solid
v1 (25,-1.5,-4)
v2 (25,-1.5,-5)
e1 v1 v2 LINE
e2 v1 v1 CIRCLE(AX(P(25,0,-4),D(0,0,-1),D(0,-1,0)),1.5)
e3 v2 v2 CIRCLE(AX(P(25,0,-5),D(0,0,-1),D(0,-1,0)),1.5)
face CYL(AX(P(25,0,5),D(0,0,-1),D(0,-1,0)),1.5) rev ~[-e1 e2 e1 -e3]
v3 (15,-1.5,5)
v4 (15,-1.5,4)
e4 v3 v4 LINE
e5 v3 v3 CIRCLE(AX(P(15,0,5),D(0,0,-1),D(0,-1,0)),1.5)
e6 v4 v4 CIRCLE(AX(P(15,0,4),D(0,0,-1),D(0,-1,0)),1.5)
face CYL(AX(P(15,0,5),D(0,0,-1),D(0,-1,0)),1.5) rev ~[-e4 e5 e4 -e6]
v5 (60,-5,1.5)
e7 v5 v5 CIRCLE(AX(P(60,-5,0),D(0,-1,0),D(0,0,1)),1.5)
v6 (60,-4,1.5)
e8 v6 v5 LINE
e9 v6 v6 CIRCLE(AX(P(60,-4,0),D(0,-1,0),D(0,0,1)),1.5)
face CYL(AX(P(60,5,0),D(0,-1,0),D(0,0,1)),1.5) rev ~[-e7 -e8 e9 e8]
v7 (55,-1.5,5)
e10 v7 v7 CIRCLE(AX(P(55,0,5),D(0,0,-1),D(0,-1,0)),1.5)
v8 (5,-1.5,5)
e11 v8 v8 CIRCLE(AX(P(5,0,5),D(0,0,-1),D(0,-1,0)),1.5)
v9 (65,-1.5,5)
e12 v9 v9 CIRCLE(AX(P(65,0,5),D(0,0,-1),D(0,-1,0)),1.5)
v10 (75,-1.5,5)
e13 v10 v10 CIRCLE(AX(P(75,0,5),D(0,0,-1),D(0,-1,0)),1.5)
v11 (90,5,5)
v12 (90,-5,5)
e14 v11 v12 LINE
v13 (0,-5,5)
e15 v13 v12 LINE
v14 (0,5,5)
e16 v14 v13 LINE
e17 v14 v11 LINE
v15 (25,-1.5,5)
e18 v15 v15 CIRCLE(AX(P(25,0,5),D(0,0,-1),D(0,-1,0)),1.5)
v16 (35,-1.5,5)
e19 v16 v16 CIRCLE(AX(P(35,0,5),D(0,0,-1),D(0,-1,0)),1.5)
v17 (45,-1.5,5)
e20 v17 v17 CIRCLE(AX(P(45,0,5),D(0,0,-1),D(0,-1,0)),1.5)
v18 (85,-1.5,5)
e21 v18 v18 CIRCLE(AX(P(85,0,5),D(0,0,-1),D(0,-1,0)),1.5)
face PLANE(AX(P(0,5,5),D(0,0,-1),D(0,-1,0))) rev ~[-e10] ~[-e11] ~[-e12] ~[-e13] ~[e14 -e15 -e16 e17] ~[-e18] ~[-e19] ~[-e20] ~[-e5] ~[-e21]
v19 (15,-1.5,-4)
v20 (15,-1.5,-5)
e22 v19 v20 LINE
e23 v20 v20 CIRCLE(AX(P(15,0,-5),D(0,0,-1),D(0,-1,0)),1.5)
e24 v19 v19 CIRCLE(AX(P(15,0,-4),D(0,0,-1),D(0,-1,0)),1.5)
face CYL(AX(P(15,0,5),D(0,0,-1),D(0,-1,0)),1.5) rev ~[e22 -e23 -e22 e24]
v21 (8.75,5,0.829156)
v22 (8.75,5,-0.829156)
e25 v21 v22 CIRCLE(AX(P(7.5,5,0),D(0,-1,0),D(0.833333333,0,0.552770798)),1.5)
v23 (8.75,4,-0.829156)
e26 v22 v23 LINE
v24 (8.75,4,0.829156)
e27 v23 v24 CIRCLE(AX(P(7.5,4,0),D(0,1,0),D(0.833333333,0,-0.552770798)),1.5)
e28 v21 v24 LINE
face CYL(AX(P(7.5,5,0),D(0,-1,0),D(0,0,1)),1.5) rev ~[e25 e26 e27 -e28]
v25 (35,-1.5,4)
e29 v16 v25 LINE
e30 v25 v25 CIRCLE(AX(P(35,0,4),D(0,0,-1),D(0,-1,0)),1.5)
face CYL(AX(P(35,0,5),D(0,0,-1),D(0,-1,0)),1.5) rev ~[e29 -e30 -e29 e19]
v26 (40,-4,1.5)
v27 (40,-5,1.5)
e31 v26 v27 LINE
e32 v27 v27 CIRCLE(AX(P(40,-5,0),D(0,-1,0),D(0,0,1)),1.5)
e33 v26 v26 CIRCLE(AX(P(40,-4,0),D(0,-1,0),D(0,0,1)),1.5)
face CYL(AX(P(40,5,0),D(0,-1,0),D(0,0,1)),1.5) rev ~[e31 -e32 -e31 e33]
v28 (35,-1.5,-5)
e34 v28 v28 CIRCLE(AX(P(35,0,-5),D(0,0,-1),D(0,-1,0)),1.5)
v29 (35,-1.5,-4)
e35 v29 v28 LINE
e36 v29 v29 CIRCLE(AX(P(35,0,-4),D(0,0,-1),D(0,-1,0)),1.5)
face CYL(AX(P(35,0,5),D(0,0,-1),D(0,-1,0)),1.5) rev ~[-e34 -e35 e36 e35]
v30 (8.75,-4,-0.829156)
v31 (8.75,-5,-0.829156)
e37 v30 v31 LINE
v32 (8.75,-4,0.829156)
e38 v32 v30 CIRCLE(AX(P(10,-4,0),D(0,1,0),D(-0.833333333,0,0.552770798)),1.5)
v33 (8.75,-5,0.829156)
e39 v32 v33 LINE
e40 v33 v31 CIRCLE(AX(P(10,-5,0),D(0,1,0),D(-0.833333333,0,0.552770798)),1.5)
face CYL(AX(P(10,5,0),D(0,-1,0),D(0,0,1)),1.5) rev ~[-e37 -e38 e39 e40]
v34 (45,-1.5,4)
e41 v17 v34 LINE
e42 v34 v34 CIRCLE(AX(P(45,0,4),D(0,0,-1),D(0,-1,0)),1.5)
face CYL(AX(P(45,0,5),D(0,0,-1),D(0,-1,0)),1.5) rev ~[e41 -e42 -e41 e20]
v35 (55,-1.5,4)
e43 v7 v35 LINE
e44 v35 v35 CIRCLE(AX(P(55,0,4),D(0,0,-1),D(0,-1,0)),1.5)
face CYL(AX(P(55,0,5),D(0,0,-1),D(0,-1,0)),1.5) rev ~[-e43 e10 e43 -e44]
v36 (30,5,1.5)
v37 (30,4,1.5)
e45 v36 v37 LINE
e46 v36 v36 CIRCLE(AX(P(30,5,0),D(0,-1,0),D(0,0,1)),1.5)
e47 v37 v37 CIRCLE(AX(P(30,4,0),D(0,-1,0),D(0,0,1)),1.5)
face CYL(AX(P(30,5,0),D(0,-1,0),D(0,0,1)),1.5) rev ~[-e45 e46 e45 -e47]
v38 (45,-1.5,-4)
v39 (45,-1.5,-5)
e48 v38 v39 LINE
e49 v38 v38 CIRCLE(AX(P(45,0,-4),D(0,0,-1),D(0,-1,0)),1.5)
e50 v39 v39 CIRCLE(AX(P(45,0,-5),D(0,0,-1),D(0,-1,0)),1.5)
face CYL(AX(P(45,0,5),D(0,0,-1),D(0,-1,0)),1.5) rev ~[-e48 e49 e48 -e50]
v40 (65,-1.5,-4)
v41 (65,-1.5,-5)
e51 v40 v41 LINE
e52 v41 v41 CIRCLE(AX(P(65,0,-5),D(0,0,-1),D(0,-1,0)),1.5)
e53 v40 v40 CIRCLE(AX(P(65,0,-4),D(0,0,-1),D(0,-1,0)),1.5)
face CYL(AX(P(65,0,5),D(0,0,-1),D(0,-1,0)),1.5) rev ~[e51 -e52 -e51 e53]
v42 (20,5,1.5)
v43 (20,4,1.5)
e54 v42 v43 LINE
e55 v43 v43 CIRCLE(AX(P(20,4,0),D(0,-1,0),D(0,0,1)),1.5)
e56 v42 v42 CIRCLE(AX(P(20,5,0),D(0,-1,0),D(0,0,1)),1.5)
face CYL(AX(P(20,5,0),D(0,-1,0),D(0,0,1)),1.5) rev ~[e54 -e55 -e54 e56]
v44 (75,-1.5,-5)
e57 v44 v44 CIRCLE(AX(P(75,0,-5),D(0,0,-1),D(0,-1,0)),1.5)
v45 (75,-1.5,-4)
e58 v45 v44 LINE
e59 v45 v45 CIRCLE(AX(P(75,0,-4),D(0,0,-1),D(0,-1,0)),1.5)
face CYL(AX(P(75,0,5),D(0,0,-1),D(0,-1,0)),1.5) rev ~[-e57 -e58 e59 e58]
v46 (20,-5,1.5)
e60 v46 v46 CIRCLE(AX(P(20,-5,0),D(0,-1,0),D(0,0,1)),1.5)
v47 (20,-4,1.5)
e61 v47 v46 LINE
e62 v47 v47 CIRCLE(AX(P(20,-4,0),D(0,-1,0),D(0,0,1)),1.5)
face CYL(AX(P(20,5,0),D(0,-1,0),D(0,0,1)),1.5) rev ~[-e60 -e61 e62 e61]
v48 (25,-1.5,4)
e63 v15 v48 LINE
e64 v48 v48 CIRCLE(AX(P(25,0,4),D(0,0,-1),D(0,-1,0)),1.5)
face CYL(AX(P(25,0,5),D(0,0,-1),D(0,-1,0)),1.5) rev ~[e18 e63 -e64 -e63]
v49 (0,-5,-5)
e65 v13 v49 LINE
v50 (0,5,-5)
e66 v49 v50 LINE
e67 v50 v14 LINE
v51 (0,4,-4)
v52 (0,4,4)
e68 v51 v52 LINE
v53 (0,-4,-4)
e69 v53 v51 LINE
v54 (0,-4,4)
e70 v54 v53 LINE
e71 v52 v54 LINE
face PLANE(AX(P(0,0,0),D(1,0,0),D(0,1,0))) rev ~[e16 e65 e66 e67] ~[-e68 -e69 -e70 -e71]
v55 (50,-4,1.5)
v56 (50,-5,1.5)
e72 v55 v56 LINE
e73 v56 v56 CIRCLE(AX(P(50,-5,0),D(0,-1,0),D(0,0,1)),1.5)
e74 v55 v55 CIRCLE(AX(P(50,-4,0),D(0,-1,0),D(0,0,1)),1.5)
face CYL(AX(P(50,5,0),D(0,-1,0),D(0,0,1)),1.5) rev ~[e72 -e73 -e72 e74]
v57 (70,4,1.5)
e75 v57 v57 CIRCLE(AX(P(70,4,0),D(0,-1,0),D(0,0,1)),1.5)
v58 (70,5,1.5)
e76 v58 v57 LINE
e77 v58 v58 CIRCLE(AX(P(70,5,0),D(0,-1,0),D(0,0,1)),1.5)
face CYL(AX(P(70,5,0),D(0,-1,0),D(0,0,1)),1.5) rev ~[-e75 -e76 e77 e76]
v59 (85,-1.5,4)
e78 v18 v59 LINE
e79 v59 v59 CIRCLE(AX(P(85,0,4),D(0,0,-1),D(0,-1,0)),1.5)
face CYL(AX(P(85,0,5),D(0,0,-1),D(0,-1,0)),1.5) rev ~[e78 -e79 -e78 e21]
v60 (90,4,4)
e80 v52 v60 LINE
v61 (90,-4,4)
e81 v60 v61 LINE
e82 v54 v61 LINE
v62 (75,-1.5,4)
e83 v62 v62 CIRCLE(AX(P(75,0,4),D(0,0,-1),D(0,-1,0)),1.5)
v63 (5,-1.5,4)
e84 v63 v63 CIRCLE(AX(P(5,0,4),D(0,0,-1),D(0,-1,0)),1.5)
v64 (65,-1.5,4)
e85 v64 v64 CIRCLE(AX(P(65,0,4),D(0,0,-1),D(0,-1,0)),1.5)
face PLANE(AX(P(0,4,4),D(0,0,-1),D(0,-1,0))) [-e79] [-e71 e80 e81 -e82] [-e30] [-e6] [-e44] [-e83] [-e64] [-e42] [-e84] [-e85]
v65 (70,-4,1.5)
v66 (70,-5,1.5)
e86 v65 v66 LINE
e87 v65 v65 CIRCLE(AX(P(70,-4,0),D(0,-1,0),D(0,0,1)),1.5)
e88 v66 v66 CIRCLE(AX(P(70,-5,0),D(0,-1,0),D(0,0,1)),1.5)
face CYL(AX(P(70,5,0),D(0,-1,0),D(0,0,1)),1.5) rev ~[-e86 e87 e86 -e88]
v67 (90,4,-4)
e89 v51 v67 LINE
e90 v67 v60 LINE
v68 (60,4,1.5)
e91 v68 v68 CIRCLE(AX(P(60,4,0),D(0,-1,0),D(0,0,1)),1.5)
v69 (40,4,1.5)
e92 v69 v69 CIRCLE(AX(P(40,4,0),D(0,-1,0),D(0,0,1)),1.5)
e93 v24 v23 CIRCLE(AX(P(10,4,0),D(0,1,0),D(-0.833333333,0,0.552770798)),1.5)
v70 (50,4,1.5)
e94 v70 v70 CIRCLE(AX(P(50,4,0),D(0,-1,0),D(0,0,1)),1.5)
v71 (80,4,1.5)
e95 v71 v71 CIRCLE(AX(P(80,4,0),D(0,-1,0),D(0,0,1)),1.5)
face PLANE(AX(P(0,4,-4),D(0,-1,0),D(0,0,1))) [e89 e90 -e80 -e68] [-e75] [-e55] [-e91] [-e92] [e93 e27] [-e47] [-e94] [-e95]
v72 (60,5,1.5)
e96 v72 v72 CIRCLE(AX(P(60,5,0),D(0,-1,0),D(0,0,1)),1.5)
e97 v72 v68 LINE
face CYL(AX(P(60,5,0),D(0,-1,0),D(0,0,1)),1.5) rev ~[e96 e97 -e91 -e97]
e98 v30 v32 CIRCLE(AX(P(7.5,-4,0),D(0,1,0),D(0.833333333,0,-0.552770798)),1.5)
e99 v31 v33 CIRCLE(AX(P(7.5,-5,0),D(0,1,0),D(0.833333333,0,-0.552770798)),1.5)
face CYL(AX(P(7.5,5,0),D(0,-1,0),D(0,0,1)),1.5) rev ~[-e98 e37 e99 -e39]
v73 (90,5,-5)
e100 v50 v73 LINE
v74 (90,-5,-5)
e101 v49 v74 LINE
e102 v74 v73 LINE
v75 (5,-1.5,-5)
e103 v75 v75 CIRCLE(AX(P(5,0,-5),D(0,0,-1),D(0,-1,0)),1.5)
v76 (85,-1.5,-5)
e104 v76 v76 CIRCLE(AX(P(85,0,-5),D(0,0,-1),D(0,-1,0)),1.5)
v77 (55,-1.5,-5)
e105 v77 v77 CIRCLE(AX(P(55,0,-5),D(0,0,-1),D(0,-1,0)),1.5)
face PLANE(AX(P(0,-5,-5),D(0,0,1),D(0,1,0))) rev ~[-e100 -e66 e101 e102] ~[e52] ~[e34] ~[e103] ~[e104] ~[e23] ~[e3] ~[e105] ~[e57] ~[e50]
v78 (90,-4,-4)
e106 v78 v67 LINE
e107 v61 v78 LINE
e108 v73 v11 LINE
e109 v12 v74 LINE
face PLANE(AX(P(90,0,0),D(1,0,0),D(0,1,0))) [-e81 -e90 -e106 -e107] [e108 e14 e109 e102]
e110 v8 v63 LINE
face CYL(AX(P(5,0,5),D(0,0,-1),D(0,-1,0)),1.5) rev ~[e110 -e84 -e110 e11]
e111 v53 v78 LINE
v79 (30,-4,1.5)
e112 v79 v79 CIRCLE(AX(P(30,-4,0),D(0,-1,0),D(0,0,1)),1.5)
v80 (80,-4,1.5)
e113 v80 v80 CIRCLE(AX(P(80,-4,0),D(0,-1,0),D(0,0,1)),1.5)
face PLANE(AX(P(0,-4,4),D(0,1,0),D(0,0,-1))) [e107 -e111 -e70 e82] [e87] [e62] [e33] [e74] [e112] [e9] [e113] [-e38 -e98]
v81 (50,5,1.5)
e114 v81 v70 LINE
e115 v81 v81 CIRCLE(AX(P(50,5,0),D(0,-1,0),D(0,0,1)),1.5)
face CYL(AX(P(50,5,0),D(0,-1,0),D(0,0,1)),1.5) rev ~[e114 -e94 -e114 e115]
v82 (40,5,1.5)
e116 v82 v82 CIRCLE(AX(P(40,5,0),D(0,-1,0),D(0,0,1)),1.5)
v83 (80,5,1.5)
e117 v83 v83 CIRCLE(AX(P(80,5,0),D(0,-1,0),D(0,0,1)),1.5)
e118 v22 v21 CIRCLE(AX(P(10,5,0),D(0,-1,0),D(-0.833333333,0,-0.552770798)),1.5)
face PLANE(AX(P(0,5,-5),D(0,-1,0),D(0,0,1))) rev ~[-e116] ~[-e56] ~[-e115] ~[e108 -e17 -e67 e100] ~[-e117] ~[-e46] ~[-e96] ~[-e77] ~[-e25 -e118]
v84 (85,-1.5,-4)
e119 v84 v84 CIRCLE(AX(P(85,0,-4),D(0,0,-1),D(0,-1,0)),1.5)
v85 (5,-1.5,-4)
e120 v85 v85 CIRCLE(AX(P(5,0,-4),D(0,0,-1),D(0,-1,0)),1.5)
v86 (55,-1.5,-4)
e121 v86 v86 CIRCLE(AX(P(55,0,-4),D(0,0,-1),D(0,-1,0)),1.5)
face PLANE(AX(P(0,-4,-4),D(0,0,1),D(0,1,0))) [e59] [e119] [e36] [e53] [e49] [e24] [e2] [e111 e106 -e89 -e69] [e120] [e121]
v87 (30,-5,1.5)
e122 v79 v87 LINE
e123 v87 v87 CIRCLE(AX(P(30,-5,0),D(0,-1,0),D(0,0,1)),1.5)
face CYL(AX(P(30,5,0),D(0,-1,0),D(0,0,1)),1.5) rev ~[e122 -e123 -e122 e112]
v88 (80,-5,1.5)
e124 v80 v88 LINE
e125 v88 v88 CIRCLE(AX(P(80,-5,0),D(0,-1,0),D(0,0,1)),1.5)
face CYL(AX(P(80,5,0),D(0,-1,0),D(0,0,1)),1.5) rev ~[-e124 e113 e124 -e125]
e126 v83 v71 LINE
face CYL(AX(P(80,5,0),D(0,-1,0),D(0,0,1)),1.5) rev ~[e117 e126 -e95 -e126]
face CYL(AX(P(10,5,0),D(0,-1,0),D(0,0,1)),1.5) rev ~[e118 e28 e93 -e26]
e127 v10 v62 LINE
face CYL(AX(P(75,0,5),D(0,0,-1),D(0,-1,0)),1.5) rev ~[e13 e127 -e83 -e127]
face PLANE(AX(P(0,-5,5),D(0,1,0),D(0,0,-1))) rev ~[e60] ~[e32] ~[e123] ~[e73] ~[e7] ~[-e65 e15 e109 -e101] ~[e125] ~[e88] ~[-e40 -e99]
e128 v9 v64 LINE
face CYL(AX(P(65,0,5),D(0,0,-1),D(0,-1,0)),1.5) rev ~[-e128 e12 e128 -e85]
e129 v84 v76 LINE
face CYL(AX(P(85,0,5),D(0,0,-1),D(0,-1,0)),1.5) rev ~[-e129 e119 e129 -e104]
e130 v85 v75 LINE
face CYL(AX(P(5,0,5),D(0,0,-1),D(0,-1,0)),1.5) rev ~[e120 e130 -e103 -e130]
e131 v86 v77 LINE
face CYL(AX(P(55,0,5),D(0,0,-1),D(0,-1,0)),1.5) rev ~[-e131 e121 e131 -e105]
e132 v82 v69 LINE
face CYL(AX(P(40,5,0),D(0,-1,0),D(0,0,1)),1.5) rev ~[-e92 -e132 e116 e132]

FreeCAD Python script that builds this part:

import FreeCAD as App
import Part
import Sketcher
from FreeCAD import Vector
Q = App.Units.Quantity


def add_polygon(sketch, points):
    """Adds a closed chain of lines whose ends are joined by coincident constraints."""
    first, n = sketch.GeometryCount, len(points)
    for a, b in zip(points, points[1:] + points[:1]):
        sketch.addGeometry(Part.LineSegment(App.Vector(*a, 0), App.Vector(*b, 0)), False)
    for i in range(n):
        sketch.addConstraint(Sketcher.Constraint("Coincident", first + i, 2, first + (i + 1) % n, 1))

doc = App.newDocument("Part")
body = doc.addObject("PartDesign::Body", "Body")

sketch1 = body.newObject("Sketcher::SketchObject", "Sketch")
sketch1.AttachmentSupport = (doc.getObject("YZ_Plane"), [""])
sketch1.MapMode = "FlatFace"
add_polygon(sketch1, [(-5, 5), (-5, -5), (5, -5), (5, 5)])
add_polygon(sketch1, [(4, -4), (-4, -4), (-4, 4), (4, 4)])
sketch1.addConstraint([
    Sketcher.Constraint("Vertical", 0),
    Sketcher.Constraint("Horizontal", 1),
    Sketcher.Constraint("Vertical", 2),
    Sketcher.Constraint("Horizontal", 3),
    Sketcher.Constraint("Horizontal", 4),
    Sketcher.Constraint("Vertical", 5),
    Sketcher.Constraint("Horizontal", 6),
    Sketcher.Constraint("Vertical", 7),
    Sketcher.Constraint("Symmetric", 0, 2, 2, 2, -1, 1),
    Sketcher.Constraint("Symmetric", 4, 2, 6, 2, -1, 1),
    Sketcher.Constraint("Equal", 3, 0),
    Sketcher.Constraint("Equal", 6, 5),
    Sketcher.Constraint("DistanceX", 1, 1, 1, 2, Q("10 mm")),
    Sketcher.Constraint("DistanceX", 4, 2, 4, 1, Q("8 mm")),
])
pad1 = body.newObject("PartDesign::Pad", "Pad")
pad1.Profile = sketch1
pad1.Length = 90

sketch2 = body.newObject("Sketcher::SketchObject", "Sketch001")
sketch2.AttachmentSupport = (doc.getObject("XY_Plane"), [""])
sketch2.MapMode = "FlatFace"
sketch2.AttachmentOffset = App.Placement(Vector(0, 0, 5), App.Rotation())
sketch2.addGeometry([
    Part.Circle(Vector(5, 0, 0), Vector(0, 0, 1), 1.5),
    Part.Circle(Vector(15, 0, 0), Vector(0, 0, 1), 1.5),
    Part.Circle(Vector(25, 0, 0), Vector(0, 0, 1), 1.5),
    Part.Circle(Vector(35, 0, 0), Vector(0, 0, 1), 1.5),
    Part.Circle(Vector(45, 0, 0), Vector(0, 0, 1), 1.5),
    Part.Circle(Vector(55, 0, 0), Vector(0, 0, 1), 1.5),
    Part.Circle(Vector(65, 0, 0), Vector(0, 0, 1), 1.5),
    Part.Circle(Vector(75, 0, 0), Vector(0, 0, 1), 1.5),
    Part.Circle(Vector(85, 0, 0), Vector(0, 0, 1), 1.5),
], False)
sketch2.addConstraint([
    Sketcher.Constraint("Equal", 0, 1),
    Sketcher.Constraint("Equal", 1, 2),
    Sketcher.Constraint("Equal", 2, 3),
    Sketcher.Constraint("Equal", 3, 4),
    Sketcher.Constraint("Equal", 4, 5),
    Sketcher.Constraint("Equal", 5, 6),
    Sketcher.Constraint("Equal", 6, 7),
    Sketcher.Constraint("Equal", 7, 8),
    Sketcher.Constraint("PointOnObject", 0, 3, -1),
    Sketcher.Constraint("PointOnObject", 1, 3, -1),
    Sketcher.Constraint("PointOnObject", 2, 3, -1),
    Sketcher.Constraint("PointOnObject", 3, 3, -1),
    Sketcher.Constraint("PointOnObject", 4, 3, -1),
    Sketcher.Constraint("PointOnObject", 5, 3, -1),
    Sketcher.Constraint("PointOnObject", 6, 3, -1),
    Sketcher.Constraint("PointOnObject", 7, 3, -1),
    Sketcher.Constraint("PointOnObject", 8, 3, -1),
    Sketcher.Constraint("Diameter", 0, Q("3 mm")),
    Sketcher.Constraint("DistanceX", -1, 1, 0, 3, Q("5 mm")),
    Sketcher.Constraint("DistanceX", -1, 1, 1, 3, Q("15 mm")),
    Sketcher.Constraint("DistanceX", -1, 1, 2, 3, Q("25 mm")),
    Sketcher.Constraint("DistanceX", -1, 1, 3, 3, Q("35 mm")),
    Sketcher.Constraint("DistanceX", -1, 1, 4, 3, Q("45 mm")),
    Sketcher.Constraint("DistanceX", -1, 1, 5, 3, Q("55 mm")),
    Sketcher.Constraint("DistanceX", -1, 1, 6, 3, Q("65 mm")),
    Sketcher.Constraint("DistanceX", -1, 1, 7, 3, Q("75 mm")),
    Sketcher.Constraint("DistanceX", -1, 1, 8, 3, Q("85 mm")),
])
doc.recompute()
hole = body.newObject("PartDesign::Hole", "Hole")
hole.Profile = sketch2
hole.ThreadType = "None"
hole.Diameter = 3
hole.DepthType = "Dimension"
hole.Depth = 80.45
hole.DrillPoint = "Flat"

sketch3 = body.newObject("Sketcher::SketchObject", "Sketch002")
sketch3.AttachmentSupport = (doc.getObject("XZ_Plane"), [""])
sketch3.MapMode = "FlatFace"
sketch3.AttachmentOffset = App.Placement(Vector(0, 0, -5), App.Rotation())
sketch3.addGeometry([
    Part.Circle(Vector(10, 0, 0), Vector(0, 0, 1), 1.5),
    Part.Circle(Vector(20, 0, 0), Vector(0, 0, 1), 1.5),
    Part.Circle(Vector(30, 0, 0), Vector(0, 0, 1), 1.5),
    Part.Circle(Vector(40, 0, 0), Vector(0, 0, 1), 1.5),
    Part.Circle(Vector(50, 0, 0), Vector(0, 0, 1), 1.5),
    Part.Circle(Vector(60, 0, 0), Vector(0, 0, 1), 1.5),
    Part.Circle(Vector(70, 0, 0), Vector(0, 0, 1), 1.5),
    Part.Circle(Vector(80, 0, 0), Vector(0, 0, 1), 1.5),
], False)
sketch3.addConstraint([
    Sketcher.Constraint("Equal", 0, 1),
    Sketcher.Constraint("Equal", 1, 2),
    Sketcher.Constraint("Equal", 2, 3),
    Sketcher.Constraint("Equal", 3, 4),
    Sketcher.Constraint("Equal", 4, 5),
    Sketcher.Constraint("Equal", 5, 6),
    Sketcher.Constraint("Equal", 6, 7),
    Sketcher.Constraint("PointOnObject", 0, 3, -1),
    Sketcher.Constraint("PointOnObject", 1, 3, -1),
    Sketcher.Constraint("PointOnObject", 2, 3, -1),
    Sketcher.Constraint("PointOnObject", 3, 3, -1),
    Sketcher.Constraint("PointOnObject", 4, 3, -1),
    Sketcher.Constraint("PointOnObject", 5, 3, -1),
    Sketcher.Constraint("PointOnObject", 6, 3, -1),
    Sketcher.Constraint("PointOnObject", 7, 3, -1),
    Sketcher.Constraint("Diameter", 0, Q("3 mm")),
    Sketcher.Constraint("DistanceX", -1, 1, 0, 3, Q("10 mm")),
    Sketcher.Constraint("DistanceX", -1, 1, 1, 3, Q("20 mm")),
    Sketcher.Constraint("DistanceX", -1, 1, 2, 3, Q("30 mm")),
    Sketcher.Constraint("DistanceX", -1, 1, 3, 3, Q("40 mm")),
    Sketcher.Constraint("DistanceX", -1, 1, 4, 3, Q("50 mm")),
    Sketcher.Constraint("DistanceX", -1, 1, 5, 3, Q("60 mm")),
    Sketcher.Constraint("DistanceX", -1, 1, 6, 3, Q("70 mm")),
    Sketcher.Constraint("DistanceX", -1, 1, 7, 3, Q("80 mm")),
])
doc.recompute()
hole2 = body.newObject("PartDesign::Hole", "Hole001")
hole2.Profile = sketch3
hole2.ThreadType = "None"
hole2.Diameter = 3
hole2.DepthType = "Dimension"
hole2.Depth = 80.45
hole2.DrillPoint = "Flat"
hole2.Reversed = True

sketch4 = body.newObject("Sketcher::SketchObject", "Sketch003")
sketch4.AttachmentSupport = (doc.getObject("XZ_Plane"), [""])
sketch4.MapMode = "FlatFace"
sketch4.AttachmentOffset = App.Placement(Vector(0, 0, -5), App.Rotation())
sketch4.addGeometry(Part.Circle(Vector(7.5, 0, 0), Vector(0, 0, 1), 1.5), False)
sketch4.addConstraint([
    Sketcher.Constraint("PointOnObject", 0, 3, -1),
    Sketcher.Constraint("Diameter", 0, Q("3 mm")),
    Sketcher.Constraint("DistanceX", -1, 1, 0, 3, Q("7.5 mm")),
])
doc.recompute()
hole3 = body.newObject("PartDesign::Hole", "Hole002")
hole3.Profile = sketch4
hole3.ThreadType = "None"
hole3.Diameter = 3
hole3.DepthType = "Dimension"
hole3.Depth = 80.45
hole3.DrillPoint = "Flat"
hole3.Reversed = True

doc.recompute()
